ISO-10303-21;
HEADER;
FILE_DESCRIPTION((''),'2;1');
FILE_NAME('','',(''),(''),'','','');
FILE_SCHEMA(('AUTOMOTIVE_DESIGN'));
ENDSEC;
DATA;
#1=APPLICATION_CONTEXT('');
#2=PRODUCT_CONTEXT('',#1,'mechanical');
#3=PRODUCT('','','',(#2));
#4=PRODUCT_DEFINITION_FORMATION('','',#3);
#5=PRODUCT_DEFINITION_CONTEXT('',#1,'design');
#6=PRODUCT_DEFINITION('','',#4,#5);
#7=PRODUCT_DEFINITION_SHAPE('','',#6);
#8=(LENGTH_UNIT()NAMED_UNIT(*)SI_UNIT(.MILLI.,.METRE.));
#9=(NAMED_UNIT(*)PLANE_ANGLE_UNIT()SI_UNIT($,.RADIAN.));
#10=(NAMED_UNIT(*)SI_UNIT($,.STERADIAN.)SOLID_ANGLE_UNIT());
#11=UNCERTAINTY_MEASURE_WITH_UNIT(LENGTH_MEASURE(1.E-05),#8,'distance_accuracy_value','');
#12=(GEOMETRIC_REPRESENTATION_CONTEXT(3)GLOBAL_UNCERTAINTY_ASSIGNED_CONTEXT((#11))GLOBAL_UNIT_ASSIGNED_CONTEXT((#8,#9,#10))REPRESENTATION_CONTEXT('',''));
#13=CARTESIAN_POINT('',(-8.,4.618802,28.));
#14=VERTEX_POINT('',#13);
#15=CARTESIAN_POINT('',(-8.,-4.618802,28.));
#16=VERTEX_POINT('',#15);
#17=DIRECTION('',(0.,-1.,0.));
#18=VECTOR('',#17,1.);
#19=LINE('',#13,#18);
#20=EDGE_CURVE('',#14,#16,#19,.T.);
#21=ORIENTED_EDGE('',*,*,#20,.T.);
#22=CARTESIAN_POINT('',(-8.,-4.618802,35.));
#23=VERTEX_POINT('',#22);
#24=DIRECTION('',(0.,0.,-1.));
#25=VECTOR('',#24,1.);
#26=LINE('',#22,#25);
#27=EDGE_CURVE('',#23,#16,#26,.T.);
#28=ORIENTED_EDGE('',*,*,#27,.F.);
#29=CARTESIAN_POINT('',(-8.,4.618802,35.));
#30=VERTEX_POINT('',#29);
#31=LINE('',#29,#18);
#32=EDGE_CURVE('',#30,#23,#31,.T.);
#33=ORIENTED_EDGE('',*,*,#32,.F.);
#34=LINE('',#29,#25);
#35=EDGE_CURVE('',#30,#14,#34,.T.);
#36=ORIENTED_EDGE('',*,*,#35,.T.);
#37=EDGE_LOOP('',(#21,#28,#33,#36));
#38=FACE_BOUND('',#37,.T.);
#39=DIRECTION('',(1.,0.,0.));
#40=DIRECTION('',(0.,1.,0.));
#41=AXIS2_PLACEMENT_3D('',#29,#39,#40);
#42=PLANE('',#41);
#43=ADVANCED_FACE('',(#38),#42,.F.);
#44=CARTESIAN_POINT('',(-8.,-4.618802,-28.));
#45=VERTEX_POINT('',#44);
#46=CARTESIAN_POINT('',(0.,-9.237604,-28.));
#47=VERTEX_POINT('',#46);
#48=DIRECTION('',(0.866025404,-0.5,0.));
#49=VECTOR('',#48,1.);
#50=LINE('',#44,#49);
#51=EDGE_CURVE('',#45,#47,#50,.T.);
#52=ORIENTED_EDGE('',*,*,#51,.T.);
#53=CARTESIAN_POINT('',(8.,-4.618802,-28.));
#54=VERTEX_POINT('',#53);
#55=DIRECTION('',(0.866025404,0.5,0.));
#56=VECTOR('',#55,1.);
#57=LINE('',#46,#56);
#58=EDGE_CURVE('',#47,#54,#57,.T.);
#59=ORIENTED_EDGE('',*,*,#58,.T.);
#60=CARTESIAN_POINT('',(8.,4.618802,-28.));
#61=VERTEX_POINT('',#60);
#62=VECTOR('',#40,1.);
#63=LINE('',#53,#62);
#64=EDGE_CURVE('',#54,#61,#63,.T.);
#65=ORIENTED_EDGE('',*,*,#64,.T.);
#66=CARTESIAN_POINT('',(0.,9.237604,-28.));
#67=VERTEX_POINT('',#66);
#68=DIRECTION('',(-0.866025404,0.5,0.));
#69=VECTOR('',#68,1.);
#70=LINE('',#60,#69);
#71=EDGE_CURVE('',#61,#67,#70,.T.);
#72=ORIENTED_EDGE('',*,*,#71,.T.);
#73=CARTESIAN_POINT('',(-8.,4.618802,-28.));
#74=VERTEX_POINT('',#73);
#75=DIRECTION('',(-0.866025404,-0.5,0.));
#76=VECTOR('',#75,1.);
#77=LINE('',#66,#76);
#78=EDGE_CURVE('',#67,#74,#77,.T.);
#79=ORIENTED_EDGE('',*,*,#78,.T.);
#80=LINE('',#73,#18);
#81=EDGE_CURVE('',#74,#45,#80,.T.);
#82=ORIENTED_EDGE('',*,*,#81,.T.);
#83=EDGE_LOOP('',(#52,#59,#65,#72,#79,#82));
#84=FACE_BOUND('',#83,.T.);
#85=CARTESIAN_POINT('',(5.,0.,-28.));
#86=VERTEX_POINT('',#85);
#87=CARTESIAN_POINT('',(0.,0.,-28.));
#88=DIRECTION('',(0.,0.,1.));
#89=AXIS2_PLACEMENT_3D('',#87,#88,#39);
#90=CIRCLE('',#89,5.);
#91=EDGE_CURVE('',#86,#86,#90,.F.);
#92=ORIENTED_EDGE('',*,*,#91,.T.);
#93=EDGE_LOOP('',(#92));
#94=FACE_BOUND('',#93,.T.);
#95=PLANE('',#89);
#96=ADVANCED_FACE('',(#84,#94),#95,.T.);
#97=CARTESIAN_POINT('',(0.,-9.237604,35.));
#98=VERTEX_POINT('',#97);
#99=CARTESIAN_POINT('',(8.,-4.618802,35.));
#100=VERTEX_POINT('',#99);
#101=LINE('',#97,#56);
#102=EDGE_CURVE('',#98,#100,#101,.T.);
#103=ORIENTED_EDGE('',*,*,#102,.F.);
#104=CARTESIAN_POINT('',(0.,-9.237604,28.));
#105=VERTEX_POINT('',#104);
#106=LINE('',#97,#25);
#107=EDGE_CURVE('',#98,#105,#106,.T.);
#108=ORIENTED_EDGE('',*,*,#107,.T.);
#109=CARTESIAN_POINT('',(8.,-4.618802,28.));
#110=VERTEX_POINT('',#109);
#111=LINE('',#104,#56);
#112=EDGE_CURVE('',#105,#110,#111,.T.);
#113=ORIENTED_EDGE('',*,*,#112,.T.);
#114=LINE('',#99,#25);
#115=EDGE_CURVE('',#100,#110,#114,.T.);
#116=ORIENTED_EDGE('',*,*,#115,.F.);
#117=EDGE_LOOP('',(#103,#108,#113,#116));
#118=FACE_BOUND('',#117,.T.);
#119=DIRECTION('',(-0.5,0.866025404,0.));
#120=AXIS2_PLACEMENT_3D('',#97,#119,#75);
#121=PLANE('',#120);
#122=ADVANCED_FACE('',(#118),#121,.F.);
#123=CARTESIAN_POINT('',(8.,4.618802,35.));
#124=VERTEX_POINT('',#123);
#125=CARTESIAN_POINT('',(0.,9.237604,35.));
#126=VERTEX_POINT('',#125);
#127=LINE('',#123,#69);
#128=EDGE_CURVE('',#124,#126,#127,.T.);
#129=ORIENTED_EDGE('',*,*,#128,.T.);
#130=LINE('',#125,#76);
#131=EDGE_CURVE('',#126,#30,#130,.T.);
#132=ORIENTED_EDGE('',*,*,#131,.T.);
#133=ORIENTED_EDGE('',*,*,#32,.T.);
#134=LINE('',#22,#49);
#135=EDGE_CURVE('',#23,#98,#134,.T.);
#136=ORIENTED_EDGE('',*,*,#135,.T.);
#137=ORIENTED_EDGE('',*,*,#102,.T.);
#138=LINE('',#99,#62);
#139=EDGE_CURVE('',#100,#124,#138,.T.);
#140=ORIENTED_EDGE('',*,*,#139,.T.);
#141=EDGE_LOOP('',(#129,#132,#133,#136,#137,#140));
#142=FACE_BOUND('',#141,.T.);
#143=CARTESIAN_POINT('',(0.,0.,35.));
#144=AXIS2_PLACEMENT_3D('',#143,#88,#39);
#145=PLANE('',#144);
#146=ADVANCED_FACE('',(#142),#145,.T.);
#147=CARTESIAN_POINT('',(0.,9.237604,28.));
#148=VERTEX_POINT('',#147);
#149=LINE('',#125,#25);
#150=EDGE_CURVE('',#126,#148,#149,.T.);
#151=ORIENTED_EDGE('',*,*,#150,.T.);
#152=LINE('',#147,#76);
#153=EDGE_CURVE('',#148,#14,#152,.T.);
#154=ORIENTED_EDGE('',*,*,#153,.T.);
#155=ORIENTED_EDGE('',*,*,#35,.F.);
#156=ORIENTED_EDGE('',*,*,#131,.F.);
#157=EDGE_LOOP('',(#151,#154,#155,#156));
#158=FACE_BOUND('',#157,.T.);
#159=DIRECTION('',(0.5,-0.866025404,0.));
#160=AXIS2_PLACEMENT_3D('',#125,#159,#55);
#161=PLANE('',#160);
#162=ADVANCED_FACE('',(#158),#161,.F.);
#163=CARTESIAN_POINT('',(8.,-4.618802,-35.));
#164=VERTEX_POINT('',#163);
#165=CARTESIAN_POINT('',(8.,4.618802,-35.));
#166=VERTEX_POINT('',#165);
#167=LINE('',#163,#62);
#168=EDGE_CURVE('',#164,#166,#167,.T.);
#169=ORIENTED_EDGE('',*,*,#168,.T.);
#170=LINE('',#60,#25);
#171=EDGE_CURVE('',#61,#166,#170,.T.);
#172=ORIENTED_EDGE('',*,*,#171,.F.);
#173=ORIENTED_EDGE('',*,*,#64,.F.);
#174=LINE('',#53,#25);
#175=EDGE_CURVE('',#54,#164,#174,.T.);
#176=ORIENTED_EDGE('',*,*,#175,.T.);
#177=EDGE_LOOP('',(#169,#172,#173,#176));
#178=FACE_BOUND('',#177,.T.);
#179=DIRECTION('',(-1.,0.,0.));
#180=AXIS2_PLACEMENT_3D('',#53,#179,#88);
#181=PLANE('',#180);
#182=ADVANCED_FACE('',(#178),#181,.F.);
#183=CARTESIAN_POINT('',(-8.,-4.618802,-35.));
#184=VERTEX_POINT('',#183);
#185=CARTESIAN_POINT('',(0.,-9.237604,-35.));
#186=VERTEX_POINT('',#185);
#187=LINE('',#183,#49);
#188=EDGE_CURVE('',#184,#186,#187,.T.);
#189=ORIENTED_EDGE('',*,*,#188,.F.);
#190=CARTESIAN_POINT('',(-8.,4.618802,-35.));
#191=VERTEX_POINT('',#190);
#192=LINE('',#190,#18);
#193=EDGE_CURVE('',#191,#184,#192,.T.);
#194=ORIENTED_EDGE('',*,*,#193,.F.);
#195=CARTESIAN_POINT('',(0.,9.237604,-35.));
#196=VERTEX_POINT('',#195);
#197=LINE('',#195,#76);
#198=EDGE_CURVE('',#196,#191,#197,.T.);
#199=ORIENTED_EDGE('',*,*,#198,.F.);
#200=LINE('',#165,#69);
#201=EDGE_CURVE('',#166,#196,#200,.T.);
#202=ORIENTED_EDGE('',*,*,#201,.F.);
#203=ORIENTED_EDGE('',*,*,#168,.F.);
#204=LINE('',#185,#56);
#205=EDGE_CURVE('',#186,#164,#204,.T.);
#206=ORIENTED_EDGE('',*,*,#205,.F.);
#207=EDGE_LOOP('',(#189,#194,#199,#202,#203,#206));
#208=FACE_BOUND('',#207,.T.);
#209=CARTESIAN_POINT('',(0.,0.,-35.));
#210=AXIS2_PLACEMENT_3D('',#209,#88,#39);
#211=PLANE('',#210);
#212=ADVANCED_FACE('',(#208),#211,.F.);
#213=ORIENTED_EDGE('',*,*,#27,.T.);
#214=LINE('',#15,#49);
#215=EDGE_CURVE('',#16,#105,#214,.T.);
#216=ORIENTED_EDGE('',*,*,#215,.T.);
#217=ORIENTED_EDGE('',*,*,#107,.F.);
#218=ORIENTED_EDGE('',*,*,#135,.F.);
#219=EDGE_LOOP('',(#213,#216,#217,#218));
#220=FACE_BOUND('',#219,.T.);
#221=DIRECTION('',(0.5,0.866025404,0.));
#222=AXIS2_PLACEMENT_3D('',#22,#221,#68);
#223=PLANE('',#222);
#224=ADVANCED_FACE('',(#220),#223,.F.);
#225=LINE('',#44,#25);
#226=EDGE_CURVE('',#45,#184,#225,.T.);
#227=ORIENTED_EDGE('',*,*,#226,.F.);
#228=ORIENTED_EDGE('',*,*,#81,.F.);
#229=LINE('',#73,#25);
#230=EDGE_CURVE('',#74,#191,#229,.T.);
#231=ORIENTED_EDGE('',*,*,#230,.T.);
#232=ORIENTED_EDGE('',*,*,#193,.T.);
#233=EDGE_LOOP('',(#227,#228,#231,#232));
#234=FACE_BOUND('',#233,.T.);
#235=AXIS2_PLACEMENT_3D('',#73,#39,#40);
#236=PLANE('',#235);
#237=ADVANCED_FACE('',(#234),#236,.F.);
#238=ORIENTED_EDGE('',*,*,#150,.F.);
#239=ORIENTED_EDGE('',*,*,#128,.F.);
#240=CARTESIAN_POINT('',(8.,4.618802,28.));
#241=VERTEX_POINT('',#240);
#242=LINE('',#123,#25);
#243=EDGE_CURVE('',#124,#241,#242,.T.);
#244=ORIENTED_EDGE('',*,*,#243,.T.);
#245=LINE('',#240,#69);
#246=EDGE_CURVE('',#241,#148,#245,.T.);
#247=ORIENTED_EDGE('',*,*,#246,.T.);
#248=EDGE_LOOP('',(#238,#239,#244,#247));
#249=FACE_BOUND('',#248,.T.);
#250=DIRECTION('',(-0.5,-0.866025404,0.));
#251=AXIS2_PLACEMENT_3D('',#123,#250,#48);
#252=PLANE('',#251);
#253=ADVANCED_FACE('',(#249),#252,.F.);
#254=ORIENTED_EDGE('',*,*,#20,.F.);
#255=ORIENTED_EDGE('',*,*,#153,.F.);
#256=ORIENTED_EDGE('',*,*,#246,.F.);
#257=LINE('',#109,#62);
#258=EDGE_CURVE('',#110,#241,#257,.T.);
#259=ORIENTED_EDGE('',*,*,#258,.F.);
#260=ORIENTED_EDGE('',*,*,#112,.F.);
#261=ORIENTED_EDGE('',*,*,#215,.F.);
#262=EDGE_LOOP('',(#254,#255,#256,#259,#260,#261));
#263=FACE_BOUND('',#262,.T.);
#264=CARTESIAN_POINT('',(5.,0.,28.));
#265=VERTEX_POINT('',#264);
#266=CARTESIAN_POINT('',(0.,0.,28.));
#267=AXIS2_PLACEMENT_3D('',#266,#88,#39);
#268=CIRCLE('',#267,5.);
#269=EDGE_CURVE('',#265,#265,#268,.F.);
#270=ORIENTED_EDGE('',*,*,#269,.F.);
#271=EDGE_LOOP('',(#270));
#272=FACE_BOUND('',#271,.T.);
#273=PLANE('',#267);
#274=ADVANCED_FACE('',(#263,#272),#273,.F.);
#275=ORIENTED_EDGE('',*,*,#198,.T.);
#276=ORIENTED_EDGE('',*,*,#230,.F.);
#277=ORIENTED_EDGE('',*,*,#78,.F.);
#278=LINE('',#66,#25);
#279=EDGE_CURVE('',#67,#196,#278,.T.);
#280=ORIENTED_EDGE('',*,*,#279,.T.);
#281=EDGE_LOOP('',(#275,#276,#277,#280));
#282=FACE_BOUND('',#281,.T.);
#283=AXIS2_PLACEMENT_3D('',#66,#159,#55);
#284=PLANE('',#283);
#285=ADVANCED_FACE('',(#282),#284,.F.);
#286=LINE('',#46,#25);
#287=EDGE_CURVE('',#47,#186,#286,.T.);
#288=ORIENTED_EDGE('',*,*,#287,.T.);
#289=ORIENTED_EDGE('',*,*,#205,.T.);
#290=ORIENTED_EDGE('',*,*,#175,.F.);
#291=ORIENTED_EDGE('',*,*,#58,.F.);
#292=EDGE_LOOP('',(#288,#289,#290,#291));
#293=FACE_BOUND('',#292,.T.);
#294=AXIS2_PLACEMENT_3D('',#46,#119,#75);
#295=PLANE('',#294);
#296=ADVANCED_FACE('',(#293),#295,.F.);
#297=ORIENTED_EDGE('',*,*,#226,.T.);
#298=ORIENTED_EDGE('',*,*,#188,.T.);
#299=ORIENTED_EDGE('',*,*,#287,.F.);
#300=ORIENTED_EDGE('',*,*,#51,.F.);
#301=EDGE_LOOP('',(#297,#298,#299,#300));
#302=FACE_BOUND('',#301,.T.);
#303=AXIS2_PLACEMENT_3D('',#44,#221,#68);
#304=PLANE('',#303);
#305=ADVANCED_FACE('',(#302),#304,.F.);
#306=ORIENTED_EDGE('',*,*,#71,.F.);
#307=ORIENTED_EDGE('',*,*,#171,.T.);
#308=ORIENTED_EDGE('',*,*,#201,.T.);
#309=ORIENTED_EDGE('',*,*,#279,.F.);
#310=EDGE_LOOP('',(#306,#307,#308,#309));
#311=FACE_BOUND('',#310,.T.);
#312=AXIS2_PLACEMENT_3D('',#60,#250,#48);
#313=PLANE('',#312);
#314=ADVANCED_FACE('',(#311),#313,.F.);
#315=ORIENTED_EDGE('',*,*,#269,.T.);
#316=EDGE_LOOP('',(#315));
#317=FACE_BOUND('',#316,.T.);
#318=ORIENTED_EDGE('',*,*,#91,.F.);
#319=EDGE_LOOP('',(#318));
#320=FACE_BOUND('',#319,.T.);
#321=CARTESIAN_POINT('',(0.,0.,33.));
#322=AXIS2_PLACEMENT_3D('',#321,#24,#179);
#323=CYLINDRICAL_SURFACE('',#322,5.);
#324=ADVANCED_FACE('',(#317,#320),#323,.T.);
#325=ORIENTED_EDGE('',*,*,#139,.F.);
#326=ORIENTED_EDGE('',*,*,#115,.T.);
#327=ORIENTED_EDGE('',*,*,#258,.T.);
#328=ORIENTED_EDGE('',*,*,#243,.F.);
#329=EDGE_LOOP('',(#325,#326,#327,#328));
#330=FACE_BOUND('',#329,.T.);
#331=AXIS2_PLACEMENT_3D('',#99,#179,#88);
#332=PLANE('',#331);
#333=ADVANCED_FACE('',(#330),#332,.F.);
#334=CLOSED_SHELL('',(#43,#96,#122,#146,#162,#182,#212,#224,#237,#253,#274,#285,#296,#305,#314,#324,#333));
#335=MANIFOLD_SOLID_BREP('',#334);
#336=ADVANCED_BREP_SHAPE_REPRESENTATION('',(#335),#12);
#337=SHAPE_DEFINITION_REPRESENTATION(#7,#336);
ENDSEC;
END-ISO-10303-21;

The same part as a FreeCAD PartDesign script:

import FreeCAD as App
import Part
import Sketcher

V = App.Vector
Q = App.Units.Quantity

doc = App.newDocument("Part")
body = doc.addObject("PartDesign::Body", "Body")

# Sketch on XY plane
sketch1 = doc.addObject("Sketcher::SketchObject", "Sketch")
body.addObject(sketch1)
sketch1.AttachmentSupport = (doc.XY_Plane, [""])
sketch1.MapMode = "FlatFace"
sketch1.AttachmentOffset = App.Placement(V(0, 0, -33), App.Rotation())
sketch1.addGeometry(Part.Circle(V(0, 0, 0), V(0, 0, 1), 5), False)
sketch1.addConstraint([
    Sketcher.Constraint("Coincident", 0, 3, -1, 1),
    Sketcher.Constraint("Diameter", 0, 10.0),
])
pad1 = doc.addObject("PartDesign::Pad", "Pad")
body.addObject(pad1)
pad1.Profile = sketch1
pad1.Length = 66
body2 = doc.addObject("PartDesign::Body", "Body001")

# Sketch on XY plane
sketch2 = doc.addObject("Sketcher::SketchObject", "Sketch001")
body2.addObject(sketch2)
sketch2.AttachmentSupport = (doc.getObject("XY_Plane001"), [""])
sketch2.MapMode = "FlatFace"
sketch2.AttachmentOffset = App.Placement(V(0, 0, 28), App.Rotation())
sketch2.addGeometry([
    Part.LineSegment(V(8, 5, 0), V(0, 9, 0)),  # 0
    Part.LineSegment(V(0, 9, 0), V(-8, 5, 0)),  # 1
    Part.LineSegment(V(-8, 5, 0), V(-8, -5, 0)),  # 2
    Part.LineSegment(V(-8, -5, 0), V(0, -9, 0)),  # 3
    Part.LineSegment(V(0, -9, 0), V(8, -5, 0)),  # 4
    Part.LineSegment(V(8, -5, 0), V(8, 5, 0)),  # 5
], False)
sketch2.addConstraint([
    Sketcher.Constraint("Coincident", 0, 2, 1, 1),
    Sketcher.Constraint("Coincident", 1, 2, 2, 1),
    Sketcher.Constraint("Coincident", 2, 2, 3, 1),
    Sketcher.Constraint("Coincident", 3, 2, 4, 1),
    Sketcher.Constraint("Coincident", 4, 2, 5, 1),
    Sketcher.Constraint("Coincident", 5, 2, 0, 1),
    Sketcher.Constraint("Vertical", 2),
    Sketcher.Constraint("Vertical", 5),
    Sketcher.Constraint("Symmetric", 0, 2, 3, 2, -1, 1),
    Sketcher.Constraint("Symmetric", 1, 2, 4, 2, -1, 1),
    Sketcher.Constraint("PointOnObject", 0, 2, -2),
    Sketcher.Constraint("Parallel", 0, 3),
    Sketcher.Constraint("Horizontal", 2, 2, 4, 2),
    Sketcher.Constraint("Angle", 0, Q("150 deg")),
    Sketcher.Constraint("DistanceX", 1, 2, -1, 1, 8.0),
    Sketcher.Constraint("DistanceY", 2, 2, 2, 1, 9.237604),
])
pad2 = doc.addObject("PartDesign::Pad", "Pad001")
body2.addObject(pad2)
pad2.Profile = sketch2
pad2.Length = 7
body3 = doc.addObject("PartDesign::Body", "Body002")
body3.AllowCompound = True

# Sketch on XY plane
sketch3 = doc.addObject("Sketcher::SketchObject", "Sketch002")
body3.addObject(sketch3)
sketch3.AttachmentSupport = (doc.getObject("XY_Plane002"), [""])
sketch3.MapMode = "FlatFace"
sketch3.AttachmentOffset = App.Placement(V(0, 0, -35), App.Rotation())
sketch3.addGeometry([
    Part.LineSegment(V(8, 5, 0), V(0, 9, 0)),  # 0
    Part.LineSegment(V(0, 9, 0), V(-8, 5, 0)),  # 1
    Part.LineSegment(V(-8, 5, 0), V(-8, -5, 0)),  # 2
    Part.LineSegment(V(-8, -5, 0), V(0, -9, 0)),  # 3
    Part.LineSegment(V(0, -9, 0), V(8, -5, 0)),  # 4
    Part.LineSegment(V(8, -5, 0), V(8, 5, 0)),  # 5
], False)
sketch3.addConstraint([
    Sketcher.Constraint("Coincident", 0, 2, 1, 1),
    Sketcher.Constraint("Coincident", 1, 2, 2, 1),
    Sketcher.Constraint("Coincident", 2, 2, 3, 1),
    Sketcher.Constraint("Coincident", 3, 2, 4, 1),
    Sketcher.Constraint("Coincident", 4, 2, 5, 1),
    Sketcher.Constraint("Coincident", 5, 2, 0, 1),
    Sketcher.Constraint("Vertical", 2),
    Sketcher.Constraint("Vertical", 5),
    Sketcher.Constraint("Symmetric", 0, 2, 3, 2, -1, 1),
    Sketcher.Constraint("Symmetric", 1, 2, 4, 2, -1, 1),
    Sketcher.Constraint("PointOnObject", 0, 2, -2),
    Sketcher.Constraint("Parallel", 0, 3),
    Sketcher.Constraint("Horizontal", 2, 2, 4, 2),
    Sketcher.Constraint("Angle", 0, Q("150 deg")),
    Sketcher.Constraint("DistanceX", 1, 2, -1, 1, 8.0),
    Sketcher.Constraint("DistanceY", 2, 2, 2, 1, 9.237604),
])
pad3 = doc.addObject("PartDesign::Pad", "Pad002")
body3.addObject(pad3)
pad3.Profile = sketch3
pad3.Length = 7
doc.recompute()

boolean = doc.addObject("PartDesign::Boolean", "Boolean")
body3.addObject(boolean)
boolean.Type = "Fuse"
boolean.addObjects([body2])
doc.recompute()

boolean2 = doc.addObject("PartDesign::Boolean", "Boolean001")
body3.addObject(boolean2)
boolean2.Type = "Fuse"
boolean2.addObjects([body])

doc.recompute()
